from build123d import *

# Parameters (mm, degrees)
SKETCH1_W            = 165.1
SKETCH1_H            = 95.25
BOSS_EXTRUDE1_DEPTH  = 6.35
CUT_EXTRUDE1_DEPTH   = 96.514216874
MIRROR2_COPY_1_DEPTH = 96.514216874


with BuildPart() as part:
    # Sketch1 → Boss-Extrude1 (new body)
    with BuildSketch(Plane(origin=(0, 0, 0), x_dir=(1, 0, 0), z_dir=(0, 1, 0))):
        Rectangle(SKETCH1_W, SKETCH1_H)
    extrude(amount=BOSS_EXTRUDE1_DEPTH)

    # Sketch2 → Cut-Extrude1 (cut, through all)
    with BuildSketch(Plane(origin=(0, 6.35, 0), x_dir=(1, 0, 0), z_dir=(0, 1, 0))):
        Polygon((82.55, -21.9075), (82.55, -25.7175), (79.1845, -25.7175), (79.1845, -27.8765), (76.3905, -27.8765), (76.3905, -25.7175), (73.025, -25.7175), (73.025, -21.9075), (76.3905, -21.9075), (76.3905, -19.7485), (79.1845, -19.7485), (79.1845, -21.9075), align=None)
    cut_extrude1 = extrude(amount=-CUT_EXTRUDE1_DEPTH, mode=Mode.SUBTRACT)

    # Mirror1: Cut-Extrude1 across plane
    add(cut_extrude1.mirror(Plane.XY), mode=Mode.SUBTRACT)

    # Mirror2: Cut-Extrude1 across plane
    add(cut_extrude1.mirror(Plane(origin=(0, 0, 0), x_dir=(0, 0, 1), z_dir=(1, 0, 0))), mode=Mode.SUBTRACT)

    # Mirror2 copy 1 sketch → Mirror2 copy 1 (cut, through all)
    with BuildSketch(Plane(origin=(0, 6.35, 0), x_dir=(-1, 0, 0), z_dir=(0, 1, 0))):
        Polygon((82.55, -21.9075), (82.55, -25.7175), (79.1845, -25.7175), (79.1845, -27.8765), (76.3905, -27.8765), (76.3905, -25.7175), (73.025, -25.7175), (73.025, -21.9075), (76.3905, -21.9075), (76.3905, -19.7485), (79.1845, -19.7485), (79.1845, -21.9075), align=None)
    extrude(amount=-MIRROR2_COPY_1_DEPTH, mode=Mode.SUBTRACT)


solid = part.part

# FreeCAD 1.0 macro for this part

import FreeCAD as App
import Part
import Sketcher

V = App.Vector
Q = App.Units.Quantity

doc = App.newDocument("Part")
body = doc.addObject("PartDesign::Body", "Body")

# Sketch on XZ plane
sketch1 = body.newObject("Sketcher::SketchObject", "Sketch")
sketch1.AttachmentSupport = (doc.getObject("XZ_Plane"), [""])
sketch1.MapMode = "FlatFace"
sketch1.addGeometry([
    Part.LineSegment(V(-83, -48, 0), V(-83, 48, 0)),
    Part.LineSegment(V(-83, 48, 0), V(83, 48, 0)),
    Part.LineSegment(V(83, 48, 0), V(83, -48, 0)),
    Part.LineSegment(V(83, -48, 0), V(-83, -48, 0)),
], False)
sketch1.addConstraint([
    Sketcher.Constraint("Coincident", 0, 2, 1, 1),
    Sketcher.Constraint("Coincident", 1, 2, 2, 1),
    Sketcher.Constraint("Coincident", 2, 2, 3, 1),
    Sketcher.Constraint("Coincident", 3, 2, 0, 1),
    Sketcher.Constraint("Vertical", 0),
    Sketcher.Constraint("Horizontal", 1),
    Sketcher.Constraint("Vertical", 2),
    Sketcher.Constraint("Horizontal", 3),
    Sketcher.Constraint("Symmetric", 0, 2, 2, 2, -1, 1),
    Sketcher.Constraint("DistanceX", 1, 1, 1, 2, Q("6.5 in")),
    Sketcher.Constraint("DistanceY", 0, 1, 0, 2, Q("3.75 in")),
])
pad1 = body.newObject("PartDesign::Pad", "Pad")
pad1.Profile = sketch1
pad1.Length = Q("0.25 in")
pad1.Reversed = True

# Sketch on XZ plane
sketch2 = body.newObject("Sketcher::SketchObject", "Sketch001")
sketch2.AttachmentSupport = (doc.getObject("XZ_Plane"), [""])
sketch2.MapMode = "FlatFace"
sketch2.AttachmentOffset = App.Placement(V(0, 0, -0.25 * 25.4), App.Rotation())
sketch2.addGeometry([
    Part.LineSegment(V(82.5, 25.7, 0), V(82.5, 21.9, 0)),  # 0
    Part.LineSegment(V(82.5, 21.9, 0), V(79.2, 21.9, 0)),  # 1
    Part.LineSegment(V(79.2, 21.9, 0), V(79.2, 19.7, 0)),  # 2
    Part.LineSegment(V(79.2, 19.7, 0), V(76.4, 19.7, 0)),  # 3
    Part.LineSegment(V(76.4, 19.7, 0), V(76.4, 21.9, 0)),  # 4
    Part.LineSegment(V(76.4, 21.9, 0), V(73, 21.9, 0)),  # 5
    Part.LineSegment(V(73, 21.9, 0), V(73, 25.7, 0)),  # 6
    Part.LineSegment(V(73, 25.7, 0), V(76.4, 25.7, 0)),  # 7
    Part.LineSegment(V(76.4, 25.7, 0), V(76.4, 27.9, 0)),  # 8
    Part.LineSegment(V(76.4, 27.9, 0), V(79.2, 27.9, 0)),  # 9
    Part.LineSegment(V(79.2, 27.9, 0), V(79.2, 25.7, 0)),  # 10
    Part.LineSegment(V(79.2, 25.7, 0), V(82.5, 25.7, 0)),  # 11
], False)
sketch2.addConstraint([
    Sketcher.Constraint("Coincident", 0, 2, 1, 1),
    Sketcher.Constraint("Coincident", 1, 2, 2, 1),
    Sketcher.Constraint("Coincident", 2, 2, 3, 1),
    Sketcher.Constraint("Coincident", 3, 2, 4, 1),
    Sketcher.Constraint("Coincident", 4, 2, 5, 1),
    Sketcher.Constraint("Coincident", 5, 2, 6, 1),
    Sketcher.Constraint("Coincident", 6, 2, 7, 1),
    Sketcher.Constraint("Coincident", 7, 2, 8, 1),
    Sketcher.Constraint("Coincident", 8, 2, 9, 1),
    Sketcher.Constraint("Coincident", 9, 2, 10, 1),
    Sketcher.Constraint("Coincident", 10, 2, 11, 1),
    Sketcher.Constraint("Coincident", 11, 2, 0, 1),
    Sketcher.Constraint("Vertical", 0),
    Sketcher.Constraint("Horizontal", 1),
    Sketcher.Constraint("Vertical", 2),
    Sketcher.Constraint("Horizontal", 3),
    Sketcher.Constraint("Vertical", 4),
    Sketcher.Constraint("Horizontal", 5),
    Sketcher.Constraint("Vertical", 6),
    Sketcher.Constraint("Horizontal", 7),
    Sketcher.Constraint("Vertical", 8),
    Sketcher.Constraint("Horizontal", 9),
    Sketcher.Constraint("Vertical", 10),
    Sketcher.Constraint("Horizontal", 11),
    Sketcher.Constraint("Horizontal", 1, 2, 4, 2),
    Sketcher.Constraint("Horizontal", 7, 2, 10, 2),
    Sketcher.Constraint("Vertical", 4, 2, 7, 2),
    Sketcher.Constraint("Vertical", 2, 2, 9, 2),
    Sketcher.Constraint("Equal", 1, 5),
    Sketcher.Constraint("Equal", 4, 8),
    Sketcher.Constraint("DistanceX", 3, 2, 3, 1, Q("0.11 in")),
    Sketcher.Constraint("DistanceY", 0, 2, 0, 1, Q("0.15 in")),
    Sketcher.Constraint("DistanceY", 2, 2, 2, 1, Q("0.085 in")),
    Sketcher.Constraint("DistanceX", -1, 1, 0, 2, Q("3.25 in")),
    Sketcher.Constraint("DistanceX", 1, 2, 1, 1, Q("0.1325 in")),
    Sketcher.Constraint("DistanceY", -1, 1, 0, 2, Q("0.8625 in")),
])
pocket1 = body.newObject("PartDesign::Pocket", "Pocket")
pocket1.Profile = sketch2
pocket1.Type = "ThroughAll"
pocket1.Reversed = True
doc.recompute()

mirrored = body.newObject("PartDesign::Mirrored", "Mirrored")
mirrored.Originals = [pocket1]
mirrored.MirrorPlane = (doc.getObject("XY_Plane"), [""])
body.Tip = mirrored
doc.recompute()

mirrored2 = body.newObject("PartDesign::Mirrored", "Mirrored001")
mirrored2.Originals = [pocket1]
mirrored2.MirrorPlane = (doc.getObject("YZ_Plane"), [""])
body.Tip = mirrored2

# Sketch on XZ plane
sketch3 = body.newObject("Sketcher::SketchObject", "Sketch002")
sketch3.AttachmentSupport = (doc.getObject("XZ_Plane"), [""])
sketch3.MapMode = "FlatFace"
sketch3.AttachmentOffset = App.Placement(V(0, 0, -0.25 * 25.4), App.Rotation())
sketch3.addGeometry([
    Part.LineSegment(V(-82.5, -25.7, 0), V(-82.5, -21.9, 0)),  # 0
    Part.LineSegment(V(-82.5, -21.9, 0), V(-79.2, -21.9, 0)),  # 1
    Part.LineSegment(V(-79.2, -21.9, 0), V(-79.2, -19.7, 0)),  # 2
    Part.LineSegment(V(-79.2, -19.7, 0), V(-76.4, -19.7, 0)),  # 3
    Part.LineSegment(V(-76.4, -19.7, 0), V(-76.4, -21.9, 0)),  # 4
    Part.LineSegment(V(-76.4, -21.9, 0), V(-73, -21.9, 0)),  # 5
    Part.LineSegment(V(-73, -21.9, 0), V(-73, -25.7, 0)),  # 6
    Part.LineSegment(V(-73, -25.7, 0), V(-76.4, -25.7, 0)),  # 7
    Part.LineSegment(V(-76.4, -25.7, 0), V(-76.4, -27.9, 0)),  # 8
    Part.LineSegment(V(-76.4, -27.9, 0), V(-79.2, -27.9, 0)),  # 9
    Part.LineSegment(V(-79.2, -27.9, 0), V(-79.2, -25.7, 0)),  # 10
    Part.LineSegment(V(-79.2, -25.7, 0), V(-82.5, -25.7, 0)),  # 11
], False)
sketch3.addConstraint([
    Sketcher.Constraint("Coincident", 0, 2, 1, 1),
    Sketcher.Constraint("Coincident", 1, 2, 2, 1),
    Sketcher.Constraint("Coincident", 2, 2, 3, 1),
    Sketcher.Constraint("Coincident", 3, 2, 4, 1),
    Sketcher.Constraint("Coincident", 4, 2, 5, 1),
    Sketcher.Constraint("Coincident", 5, 2, 6, 1),
    Sketcher.Constraint("Coincident", 6, 2, 7, 1),
    Sketcher.Constraint("Coincident", 7, 2, 8, 1),
    Sketcher.Constraint("Coincident", 8, 2, 9, 1),
    Sketcher.Constraint("Coincident", 9, 2, 10, 1),
    Sketcher.Constraint("Coincident", 10, 2, 11, 1),
    Sketcher.Constraint("Coincident", 11, 2, 0, 1),
    Sketcher.Constraint("Vertical", 0),
    Sketcher.Constraint("Horizontal", 1),
    Sketcher.Constraint("Vertical", 2),
    Sketcher.Constraint("Horizontal", 3),
    Sketcher.Constraint("Vertical", 4),
    Sketcher.Constraint("Horizontal", 5),
    Sketcher.Constraint("Vertical", 6),
    Sketcher.Constraint("Horizontal", 7),
    Sketcher.Constraint("Vertical", 8),
    Sketcher.Constraint("Horizontal", 9),
    Sketcher.Constraint("Vertical", 10),
    Sketcher.Constraint("Horizontal", 11),
    Sketcher.Constraint("Horizontal", 1, 2, 4, 2),
    Sketcher.Constraint("Horizontal", 7, 2, 10, 2),
    Sketcher.Constraint("Vertical", 4, 2, 7, 2),
    Sketcher.Constraint("Vertical", 2, 2, 9, 2),
    Sketcher.Constraint("Equal", 1, 5),
    Sketcher.Constraint("Equal", 4, 8),
    Sketcher.Constraint("DistanceX", 3, 1, 3, 2, Q("0.11 in")),
    Sketcher.Constraint("DistanceY", 0, 1, 0, 2, Q("0.15 in")),
    Sketcher.Constraint("DistanceY", 2, 1, 2, 2, Q("0.085 in")),
    Sketcher.Constraint("DistanceX", 0, 2, -1, 1, Q("3.25 in")),
    Sketcher.Constraint("DistanceX", 1, 1, 1, 2, Q("0.1325 in")),
    Sketcher.Constraint("DistanceY", 0, 2, -1, 1, Q("0.8625 in")),
])
pocket2 = body.newObject("PartDesign::Pocket", "Pocket001")
pocket2.Profile = sketch3
pocket2.Type = "ThroughAll"
pocket2.Reversed = True

doc.recompute()
